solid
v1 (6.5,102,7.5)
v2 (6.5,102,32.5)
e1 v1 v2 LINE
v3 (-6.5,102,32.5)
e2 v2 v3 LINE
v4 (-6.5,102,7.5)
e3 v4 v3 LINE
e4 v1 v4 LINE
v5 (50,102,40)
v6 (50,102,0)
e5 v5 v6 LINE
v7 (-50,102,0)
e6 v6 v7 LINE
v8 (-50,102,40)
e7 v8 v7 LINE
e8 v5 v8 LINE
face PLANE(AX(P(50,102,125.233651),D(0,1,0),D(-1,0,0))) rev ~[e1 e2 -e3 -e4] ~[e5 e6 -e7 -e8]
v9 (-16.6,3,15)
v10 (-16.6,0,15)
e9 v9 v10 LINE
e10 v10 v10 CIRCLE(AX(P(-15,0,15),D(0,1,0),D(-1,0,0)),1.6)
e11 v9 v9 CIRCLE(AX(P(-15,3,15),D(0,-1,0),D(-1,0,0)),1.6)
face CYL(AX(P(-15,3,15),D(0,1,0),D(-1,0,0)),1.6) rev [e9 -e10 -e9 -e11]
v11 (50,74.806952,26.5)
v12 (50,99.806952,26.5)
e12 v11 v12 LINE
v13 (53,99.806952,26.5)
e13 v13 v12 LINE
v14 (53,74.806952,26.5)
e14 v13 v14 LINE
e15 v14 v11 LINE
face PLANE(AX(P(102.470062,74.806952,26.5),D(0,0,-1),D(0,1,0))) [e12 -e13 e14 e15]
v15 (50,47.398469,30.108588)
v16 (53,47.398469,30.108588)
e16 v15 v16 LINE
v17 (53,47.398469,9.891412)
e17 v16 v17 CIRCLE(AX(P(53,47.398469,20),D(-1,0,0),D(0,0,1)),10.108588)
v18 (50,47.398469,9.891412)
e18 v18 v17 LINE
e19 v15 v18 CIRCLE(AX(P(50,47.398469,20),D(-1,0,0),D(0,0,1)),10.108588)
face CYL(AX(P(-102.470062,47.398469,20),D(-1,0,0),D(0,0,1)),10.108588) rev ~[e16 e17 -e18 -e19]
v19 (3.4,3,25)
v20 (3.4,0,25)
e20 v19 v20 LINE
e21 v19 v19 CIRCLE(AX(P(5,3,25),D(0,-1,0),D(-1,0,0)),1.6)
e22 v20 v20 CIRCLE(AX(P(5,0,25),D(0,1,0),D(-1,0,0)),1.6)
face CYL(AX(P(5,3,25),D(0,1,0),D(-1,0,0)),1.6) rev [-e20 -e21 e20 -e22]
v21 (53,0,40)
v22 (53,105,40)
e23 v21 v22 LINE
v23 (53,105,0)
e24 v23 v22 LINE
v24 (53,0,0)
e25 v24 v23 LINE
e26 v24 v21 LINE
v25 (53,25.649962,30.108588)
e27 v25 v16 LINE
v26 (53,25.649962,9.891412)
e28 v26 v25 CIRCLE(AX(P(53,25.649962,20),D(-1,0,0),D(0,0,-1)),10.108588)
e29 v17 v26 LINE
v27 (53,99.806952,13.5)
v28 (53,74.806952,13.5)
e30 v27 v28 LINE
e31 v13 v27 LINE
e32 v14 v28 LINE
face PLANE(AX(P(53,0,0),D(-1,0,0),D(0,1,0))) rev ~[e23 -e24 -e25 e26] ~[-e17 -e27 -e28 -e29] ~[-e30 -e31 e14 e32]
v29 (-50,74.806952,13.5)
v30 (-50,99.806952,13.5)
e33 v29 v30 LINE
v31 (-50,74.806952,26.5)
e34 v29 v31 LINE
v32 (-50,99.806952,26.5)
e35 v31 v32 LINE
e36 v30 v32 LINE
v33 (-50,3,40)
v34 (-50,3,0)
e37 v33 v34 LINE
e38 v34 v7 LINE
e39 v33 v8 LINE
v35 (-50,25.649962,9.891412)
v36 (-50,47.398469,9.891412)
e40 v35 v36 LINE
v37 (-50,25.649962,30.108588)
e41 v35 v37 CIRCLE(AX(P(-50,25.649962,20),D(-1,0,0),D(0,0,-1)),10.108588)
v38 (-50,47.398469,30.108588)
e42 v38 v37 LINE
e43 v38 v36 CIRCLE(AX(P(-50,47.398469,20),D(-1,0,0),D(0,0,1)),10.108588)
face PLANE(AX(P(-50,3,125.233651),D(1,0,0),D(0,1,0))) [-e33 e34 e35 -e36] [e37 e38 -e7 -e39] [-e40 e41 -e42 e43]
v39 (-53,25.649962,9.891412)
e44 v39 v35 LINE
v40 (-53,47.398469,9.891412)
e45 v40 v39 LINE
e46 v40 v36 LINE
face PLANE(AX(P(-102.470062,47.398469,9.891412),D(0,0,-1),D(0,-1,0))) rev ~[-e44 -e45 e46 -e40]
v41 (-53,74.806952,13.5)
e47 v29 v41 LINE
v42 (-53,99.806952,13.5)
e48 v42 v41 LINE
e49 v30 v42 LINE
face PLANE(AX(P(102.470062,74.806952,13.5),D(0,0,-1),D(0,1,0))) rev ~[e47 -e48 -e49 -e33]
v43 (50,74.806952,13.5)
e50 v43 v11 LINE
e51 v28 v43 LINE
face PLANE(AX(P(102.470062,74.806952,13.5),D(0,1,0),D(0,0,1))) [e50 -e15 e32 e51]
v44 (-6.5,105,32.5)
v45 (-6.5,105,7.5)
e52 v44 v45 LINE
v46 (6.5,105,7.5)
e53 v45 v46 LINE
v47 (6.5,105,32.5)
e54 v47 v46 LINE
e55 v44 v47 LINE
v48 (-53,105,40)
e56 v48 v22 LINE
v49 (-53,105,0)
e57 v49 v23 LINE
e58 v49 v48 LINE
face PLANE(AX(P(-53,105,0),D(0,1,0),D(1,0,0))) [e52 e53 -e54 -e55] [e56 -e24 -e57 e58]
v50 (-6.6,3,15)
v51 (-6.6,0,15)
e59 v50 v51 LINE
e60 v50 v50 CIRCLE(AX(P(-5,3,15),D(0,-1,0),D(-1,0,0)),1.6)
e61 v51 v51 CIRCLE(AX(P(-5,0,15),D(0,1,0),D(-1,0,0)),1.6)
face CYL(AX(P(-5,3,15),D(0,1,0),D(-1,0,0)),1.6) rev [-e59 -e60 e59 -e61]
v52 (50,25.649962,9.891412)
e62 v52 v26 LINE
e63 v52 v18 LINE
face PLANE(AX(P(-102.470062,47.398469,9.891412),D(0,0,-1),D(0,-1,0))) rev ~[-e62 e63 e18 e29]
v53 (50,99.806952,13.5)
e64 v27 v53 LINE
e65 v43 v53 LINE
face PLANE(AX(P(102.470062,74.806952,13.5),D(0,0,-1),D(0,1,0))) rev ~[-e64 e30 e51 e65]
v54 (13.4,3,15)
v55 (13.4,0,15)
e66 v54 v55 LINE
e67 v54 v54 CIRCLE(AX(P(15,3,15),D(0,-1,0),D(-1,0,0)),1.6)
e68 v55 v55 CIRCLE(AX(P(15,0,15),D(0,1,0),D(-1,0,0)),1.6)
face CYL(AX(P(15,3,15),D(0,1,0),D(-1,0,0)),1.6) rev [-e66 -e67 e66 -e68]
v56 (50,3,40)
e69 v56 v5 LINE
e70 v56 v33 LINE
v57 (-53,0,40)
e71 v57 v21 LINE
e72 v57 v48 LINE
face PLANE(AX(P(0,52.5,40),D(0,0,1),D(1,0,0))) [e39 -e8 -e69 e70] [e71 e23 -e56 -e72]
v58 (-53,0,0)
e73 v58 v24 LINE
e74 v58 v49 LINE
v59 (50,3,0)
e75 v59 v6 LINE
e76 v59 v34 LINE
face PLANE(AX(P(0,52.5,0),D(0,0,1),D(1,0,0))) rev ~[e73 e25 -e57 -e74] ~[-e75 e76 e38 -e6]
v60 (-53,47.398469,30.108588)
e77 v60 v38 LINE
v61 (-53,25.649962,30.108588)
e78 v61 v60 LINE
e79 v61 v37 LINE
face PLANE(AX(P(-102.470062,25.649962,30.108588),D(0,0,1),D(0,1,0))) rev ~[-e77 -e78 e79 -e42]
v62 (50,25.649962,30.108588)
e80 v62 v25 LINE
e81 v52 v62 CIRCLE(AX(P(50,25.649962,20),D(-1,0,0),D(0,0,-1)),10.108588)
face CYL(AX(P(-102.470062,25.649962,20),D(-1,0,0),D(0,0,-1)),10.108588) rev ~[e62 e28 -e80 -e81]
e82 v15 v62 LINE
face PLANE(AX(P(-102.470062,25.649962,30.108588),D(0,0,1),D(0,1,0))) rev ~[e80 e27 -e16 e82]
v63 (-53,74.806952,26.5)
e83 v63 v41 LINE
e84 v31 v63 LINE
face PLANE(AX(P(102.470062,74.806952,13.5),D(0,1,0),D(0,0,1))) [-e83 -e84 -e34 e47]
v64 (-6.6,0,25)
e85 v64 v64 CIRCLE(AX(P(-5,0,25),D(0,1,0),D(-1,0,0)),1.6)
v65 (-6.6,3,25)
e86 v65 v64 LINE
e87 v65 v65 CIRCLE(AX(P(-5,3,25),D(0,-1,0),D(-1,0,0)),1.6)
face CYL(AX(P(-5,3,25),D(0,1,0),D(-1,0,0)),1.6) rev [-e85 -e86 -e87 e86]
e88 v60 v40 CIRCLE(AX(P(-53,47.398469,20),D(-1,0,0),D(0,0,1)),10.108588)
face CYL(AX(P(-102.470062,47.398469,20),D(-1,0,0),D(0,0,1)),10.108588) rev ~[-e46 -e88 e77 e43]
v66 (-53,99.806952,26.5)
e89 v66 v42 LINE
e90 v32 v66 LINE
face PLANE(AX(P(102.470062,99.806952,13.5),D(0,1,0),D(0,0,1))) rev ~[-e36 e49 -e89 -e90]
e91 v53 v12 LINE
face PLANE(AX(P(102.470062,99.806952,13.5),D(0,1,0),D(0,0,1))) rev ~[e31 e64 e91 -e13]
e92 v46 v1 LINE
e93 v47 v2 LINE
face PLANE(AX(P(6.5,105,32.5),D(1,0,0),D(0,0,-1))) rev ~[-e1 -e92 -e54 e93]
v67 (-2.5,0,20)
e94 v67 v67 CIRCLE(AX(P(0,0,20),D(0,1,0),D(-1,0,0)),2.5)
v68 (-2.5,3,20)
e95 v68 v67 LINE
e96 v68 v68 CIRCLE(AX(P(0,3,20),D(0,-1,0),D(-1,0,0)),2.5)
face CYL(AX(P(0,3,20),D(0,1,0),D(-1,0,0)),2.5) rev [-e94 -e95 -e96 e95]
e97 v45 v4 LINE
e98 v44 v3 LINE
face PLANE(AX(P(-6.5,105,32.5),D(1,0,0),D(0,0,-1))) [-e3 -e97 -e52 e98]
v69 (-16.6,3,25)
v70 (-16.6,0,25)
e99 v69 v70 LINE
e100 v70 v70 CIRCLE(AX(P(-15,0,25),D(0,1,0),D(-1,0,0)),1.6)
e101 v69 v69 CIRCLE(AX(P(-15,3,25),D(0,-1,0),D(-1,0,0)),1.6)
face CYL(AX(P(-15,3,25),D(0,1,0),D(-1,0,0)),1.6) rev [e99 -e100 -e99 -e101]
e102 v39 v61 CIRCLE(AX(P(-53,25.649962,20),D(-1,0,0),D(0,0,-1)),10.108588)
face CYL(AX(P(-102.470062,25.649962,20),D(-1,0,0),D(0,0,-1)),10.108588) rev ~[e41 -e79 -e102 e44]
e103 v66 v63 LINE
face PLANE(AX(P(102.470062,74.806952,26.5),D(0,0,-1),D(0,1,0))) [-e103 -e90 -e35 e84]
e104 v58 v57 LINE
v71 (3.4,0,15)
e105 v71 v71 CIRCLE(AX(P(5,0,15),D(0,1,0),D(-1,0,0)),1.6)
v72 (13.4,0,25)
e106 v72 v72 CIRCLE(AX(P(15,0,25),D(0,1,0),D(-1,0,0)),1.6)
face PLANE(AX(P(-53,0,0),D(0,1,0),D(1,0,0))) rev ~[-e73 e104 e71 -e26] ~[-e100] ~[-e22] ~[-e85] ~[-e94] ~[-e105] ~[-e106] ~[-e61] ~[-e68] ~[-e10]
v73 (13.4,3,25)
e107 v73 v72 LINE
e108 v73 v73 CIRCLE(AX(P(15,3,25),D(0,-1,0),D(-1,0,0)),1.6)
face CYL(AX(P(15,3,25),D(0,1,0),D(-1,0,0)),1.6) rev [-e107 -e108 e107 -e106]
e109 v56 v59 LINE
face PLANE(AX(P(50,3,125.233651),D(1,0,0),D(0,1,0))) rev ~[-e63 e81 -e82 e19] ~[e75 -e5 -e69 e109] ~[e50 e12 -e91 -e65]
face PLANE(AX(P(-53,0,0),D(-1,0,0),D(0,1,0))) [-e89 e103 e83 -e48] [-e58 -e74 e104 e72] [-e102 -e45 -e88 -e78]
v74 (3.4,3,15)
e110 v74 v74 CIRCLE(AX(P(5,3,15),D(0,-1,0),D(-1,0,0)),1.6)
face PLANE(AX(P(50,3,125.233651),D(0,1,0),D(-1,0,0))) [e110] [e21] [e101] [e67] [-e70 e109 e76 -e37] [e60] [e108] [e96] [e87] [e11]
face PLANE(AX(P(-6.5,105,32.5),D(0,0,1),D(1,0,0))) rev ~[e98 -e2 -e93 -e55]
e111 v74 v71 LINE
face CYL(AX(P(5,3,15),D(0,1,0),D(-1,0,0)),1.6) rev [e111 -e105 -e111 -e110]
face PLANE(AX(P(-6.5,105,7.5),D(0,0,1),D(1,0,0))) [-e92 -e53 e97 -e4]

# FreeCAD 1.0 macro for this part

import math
import FreeCAD as App
import Part
import Sketcher

V = App.Vector
Q = App.Units.Quantity

doc = App.newDocument("Part")
body = doc.addObject("PartDesign::Body", "Body")

sketch1 = body.newObject("Sketcher::SketchObject", "Sketch")
sketch1.AttachmentSupport = (doc.getObject("XY_Plane"), [""])
sketch1.MapMode = "FlatFace"
sketch1.addGeometry([
    Part.LineSegment(V(-53, 105, 0), V(-53, 0, 0)),
    Part.LineSegment(V(-53, 0, 0), V(53, 0, 0)),
    Part.LineSegment(V(53, 0, 0), V(53, 105, 0)),
    Part.LineSegment(V(53, 105, 0), V(-53, 105, 0)),
], False)
sketch1.addConstraint([
    Sketcher.Constraint("Coincident", 0, 2, 1, 1),
    Sketcher.Constraint("Coincident", 1, 2, 2, 1),
    Sketcher.Constraint("Coincident", 2, 2, 3, 1),
    Sketcher.Constraint("Coincident", 3, 2, 0, 1),
    Sketcher.Constraint("Vertical", 0),
    Sketcher.Constraint("Horizontal", 1),
    Sketcher.Constraint("Vertical", 2),
    Sketcher.Constraint("Horizontal", 3),
    Sketcher.Constraint("Symmetric", 0, 2, 1, 2, -1, 1),
    Sketcher.Constraint("DistanceX", 1, 1, 1, 2, Q("106 mm")),
    Sketcher.Constraint("DistanceY", 0, 2, 0, 1, Q("105 mm")),
])
pad1 = body.newObject("PartDesign::Pad", "Pad")
pad1.Profile = sketch1
pad1.Length = 40

sketch2 = body.newObject("Sketcher::SketchObject", "Sketch001")
sketch2.AttachmentSupport = (doc.getObject("XY_Plane"), [""])
sketch2.MapMode = "FlatFace"
sketch2.addGeometry([
    Part.LineSegment(V(50, 102, 0), V(50, 3, 0)),
    Part.LineSegment(V(50, 3, 0), V(-50, 3, 0)),
    Part.LineSegment(V(-50, 3, 0), V(-50, 102, 0)),
    Part.LineSegment(V(-50, 102, 0), V(50, 102, 0)),
], False)
sketch2.addConstraint([
    Sketcher.Constraint("Coincident", 0, 2, 1, 1),
    Sketcher.Constraint("Coincident", 1, 2, 2, 1),
    Sketcher.Constraint("Coincident", 2, 2, 3, 1),
    Sketcher.Constraint("Coincident", 3, 2, 0, 1),
    Sketcher.Constraint("Vertical", 0),
    Sketcher.Constraint("Horizontal", 1),
    Sketcher.Constraint("Vertical", 2),
    Sketcher.Constraint("Horizontal", 3),
    Sketcher.Constraint("DistanceX", 1, 2, 1, 1, Q("100 mm")),
    Sketcher.Constraint("DistanceY", 0, 2, 0, 1, Q("99 mm")),
    Sketcher.Constraint("DistanceX", -1, 1, 0, 2, Q("50 mm")),
    Sketcher.Constraint("DistanceY", -1, 1, 0, 2, Q("3 mm")),
])
pocket1 = body.newObject("PartDesign::Pocket", "Pocket")
pocket1.Profile = sketch2
pocket1.Type = "ThroughAll"
pocket1.Midplane = True

sketch3 = body.newObject("Sketcher::SketchObject", "Sketch002")
sketch3.AttachmentSupport = (doc.getObject("XZ_Plane"), [""])
sketch3.MapMode = "FlatFace"
sketch3.addGeometry([
    Part.Circle(V(0, 20, 0), V(0, 0, 1), 2.5),
    Part.Circle(V(5, 25, 0), V(0, 0, 1), 1.6),
    Part.Circle(V(5, 15, 0), V(0, 0, 1), 1.6),
    Part.Circle(V(-5, 15, 0), V(0, 0, 1), 1.6),
    Part.Circle(V(-5, 25, 0), V(0, 0, 1), 1.6),
    Part.Circle(V(15, 25, 0), V(0, 0, 1), 1.6),
    Part.Circle(V(-15, 25, 0), V(0, 0, 1), 1.6),
    Part.Circle(V(15, 15, 0), V(0, 0, 1), 1.6),
    Part.Circle(V(-15, 15, 0), V(0, 0, 1), 1.6),
], False)
sketch3.addConstraint([
    Sketcher.Constraint("Equal", 1, 2),
    Sketcher.Constraint("Equal", 2, 3),
    Sketcher.Constraint("Equal", 3, 4),
    Sketcher.Constraint("Equal", 4, 5),
    Sketcher.Constraint("Equal", 5, 6),
    Sketcher.Constraint("Equal", 6, 7),
    Sketcher.Constraint("Equal", 7, 8),
    Sketcher.Constraint("Symmetric", 2, 3, 3, 3, -2),
    Sketcher.Constraint("Symmetric", 1, 3, 4, 3, -2),
    Sketcher.Constraint("Symmetric", 5, 3, 6, 3, -2),
    Sketcher.Constraint("Symmetric", 7, 3, 8, 3, -2),
    Sketcher.Constraint("PointOnObject", 0, 3, -2),
    Sketcher.Constraint("Horizontal", 4, 3, 5, 3),
    Sketcher.Constraint("Horizontal", 3, 3, 7, 3),
    Sketcher.Constraint("Vertical", 1, 3, 2, 3),
    Sketcher.Constraint("Vertical", 5, 3, 7, 3),
    Sketcher.Constraint("Diameter", 0, Q("5 mm")),
    Sketcher.Constraint("Diameter", 1, Q("3.2 mm")),
    Sketcher.Constraint("DistanceY", -1, 1, 0, 3, Q("20 mm")),
    Sketcher.Constraint("DistanceX", -1, 1, 1, 3, Q("5 mm")),
    Sketcher.Constraint("DistanceY", -1, 1, 1, 3, Q("25 mm")),
    Sketcher.Constraint("DistanceY", -1, 1, 2, 3, Q("15 mm")),
    Sketcher.Constraint("DistanceX", -1, 1, 5, 3, Q("15 mm")),
])
pocket2 = body.newObject("PartDesign::Pocket", "Pocket001")
pocket2.Profile = sketch3
pocket2.Type = "TwoLengths"
pocket2.Length = 1
pocket2.Length2 = 3
pocket2.Reversed = True

sketch4 = body.newObject("Sketcher::SketchObject", "Sketch003")
sketch4.AttachmentSupport = (doc.getObject("XZ_Plane"), [""])
sketch4.MapMode = "FlatFace"
sketch4.AttachmentOffset = App.Placement(V(0, 0, -105), App.Rotation())
sketch4.addGeometry([
    Part.LineSegment(V(-6.5, 7.5, 0), V(-6.5, 32.5, 0)),
    Part.LineSegment(V(-6.5, 32.5, 0), V(6.5, 32.5, 0)),
    Part.LineSegment(V(6.5, 32.5, 0), V(6.5, 7.5, 0)),
    Part.LineSegment(V(6.5, 7.5, 0), V(-6.5, 7.5, 0)),
], False)
sketch4.addConstraint([
    Sketcher.Constraint("Coincident", 0, 2, 1, 1),
    Sketcher.Constraint("Coincident", 1, 2, 2, 1),
    Sketcher.Constraint("Coincident", 2, 2, 3, 1),
    Sketcher.Constraint("Coincident", 3, 2, 0, 1),
    Sketcher.Constraint("Vertical", 0),
    Sketcher.Constraint("Horizontal", 1),
    Sketcher.Constraint("Vertical", 2),
    Sketcher.Constraint("Horizontal", 3),
    Sketcher.Constraint("DistanceX", 1, 1, 1, 2, Q("13 mm")),
    Sketcher.Constraint("DistanceY", 0, 1, 0, 2, Q("25 mm")),
    Sketcher.Constraint("DistanceX", 0, 2, -1, 1, Q("6.5 mm")),
    Sketcher.Constraint("DistanceY", -1, 1, 0, 2, Q("32.5 mm")),
])
pocket3 = body.newObject("PartDesign::Pocket", "Pocket002")
pocket3.Profile = sketch4
pocket3.Type = "UpToFirst"
pocket3.Reversed = True

sketch5 = body.newObject("Sketcher::SketchObject", "Sketch004")
sketch5.AttachmentSupport = (doc.getObject("XZ_Plane"), [""])
sketch5.MapMode = "FlatFace"
sketch5.AttachmentOffset = App.Placement(V(0, 0, -105), App.Rotation())
sketch5.addGeometry([
    Part.LineSegment(V(-6.5, 7.5, 0), V(-6.5, 32.5, 0)),
    Part.LineSegment(V(-6.5, 32.5, 0), V(6.5, 32.5, 0)),
    Part.LineSegment(V(6.5, 32.5, 0), V(6.5, 7.5, 0)),
    Part.LineSegment(V(6.5, 7.5, 0), V(-6.5, 7.5, 0)),
], False)
sketch5.addConstraint([
    Sketcher.Constraint("Coincident", 0, 2, 1, 1),
    Sketcher.Constraint("Coincident", 1, 2, 2, 1),
    Sketcher.Constraint("Coincident", 2, 2, 3, 1),
    Sketcher.Constraint("Coincident", 3, 2, 0, 1),
    Sketcher.Constraint("Vertical", 0),
    Sketcher.Constraint("Horizontal", 1),
    Sketcher.Constraint("Vertical", 2),
    Sketcher.Constraint("Horizontal", 3),
    Sketcher.Constraint("DistanceX", 1, 1, 1, 2, Q("13 mm")),
    Sketcher.Constraint("DistanceY", 0, 1, 0, 2, Q("25 mm")),
    Sketcher.Constraint("DistanceX", 0, 2, -1, 1, Q("6.5 mm")),
    Sketcher.Constraint("DistanceY", -1, 1, 0, 2, Q("32.5 mm")),
])
pocket4 = body.newObject("PartDesign::Pocket", "Pocket003")
pocket4.Profile = sketch5
pocket4.Length = 125.233651

sketch6 = body.newObject("Sketcher::SketchObject", "Sketch005")
sketch6.AttachmentSupport = (doc.getObject("YZ_Plane"), [""])
sketch6.MapMode = "FlatFace"
sketch6.AttachmentOffset = App.Placement(V(0, 0, -53), App.Rotation())
sketch6.addGeometry([
    Part.LineSegment(V(99.806952, 13.5, 0), V(74.806952, 13.5, 0)),
    Part.LineSegment(V(74.806952, 13.5, 0), V(74.806952, 26.5, 0)),
    Part.LineSegment(V(74.806952, 26.5, 0), V(99.806952, 26.5, 0)),
    Part.LineSegment(V(99.806952, 26.5, 0), V(99.806952, 13.5, 0)),
], False)
sketch6.addConstraint([
    Sketcher.Constraint("Coincident", 0, 2, 1, 1),
    Sketcher.Constraint("Coincident", 1, 2, 2, 1),
    Sketcher.Constraint("Coincident", 2, 2, 3, 1),
    Sketcher.Constraint("Coincident", 3, 2, 0, 1),
    Sketcher.Constraint("Horizontal", 0),
    Sketcher.Constraint("Vertical", 1),
    Sketcher.Constraint("Horizontal", 2),
    Sketcher.Constraint("Vertical", 3),
    Sketcher.Constraint("DistanceX", 0, 2, 0, 1, Q("25 mm")),
    Sketcher.Constraint("DistanceY", 1, 1, 1, 2, Q("13 mm")),
    Sketcher.Constraint("DistanceY", -1, 1, 0, 2, Q("13.5 mm")),
    Sketcher.Constraint("DistanceX", -1, 1, 0, 2, Q("74.806952 mm")),
])
pocket5 = body.newObject("PartDesign::Pocket", "Pocket004")
pocket5.Profile = sketch6
pocket5.Type = "ThroughAll"
pocket5.Midplane = True

sketch7 = body.newObject("Sketcher::SketchObject", "Sketch006")
sketch7.AttachmentSupport = (doc.getObject("YZ_Plane"), [""])
sketch7.MapMode = "FlatFace"
sketch7.AttachmentOffset = App.Placement(V(0, 0, 53), App.Rotation())
sketch7.addGeometry([
    Part.LineSegment(V(47.398469, 30.108588, 0), V(25.649962, 30.108588, 0)),
    Part.ArcOfCircle(Part.Circle(V(25.649962, 20, 0), V(0, 0, 1), 10.108588), math.radians(90), math.radians(270)),
    Part.LineSegment(V(25.649962, 9.891412, 0), V(47.398469, 9.891412, 0)),
    Part.ArcOfCircle(Part.Circle(V(47.398469, 20, 0), V(0, 0, 1), 10.108588), math.radians(-90), math.radians(90)),
], False)
sketch7.addConstraint([
    Sketcher.Constraint("Tangent", 0, 2, 1, 1),
    Sketcher.Constraint("Tangent", 1, 2, 2, 1),
    Sketcher.Constraint("Tangent", 2, 2, 3, 1),
    Sketcher.Constraint("Tangent", 3, 2, 0, 1),
    Sketcher.Constraint("Horizontal", 0),
    Sketcher.Constraint("Horizontal", 2),
    Sketcher.Constraint("DistanceY", -1, 1, 1, 3, Q("20 mm")),
    Sketcher.Constraint("Radius", 1, Q("10.108588 mm")),
    Sketcher.Constraint("DistanceX", 0, 2, 0, 1, Q("21.748507 mm")),
    Sketcher.Constraint("DistanceX", -1, 1, 1, 3, Q("25.649962 mm")),
])
pocket6 = body.newObject("PartDesign::Pocket", "Pocket005")
pocket6.Profile = sketch7
pocket6.Type = "ThroughAll"
pocket6.Midplane = True

doc.recompute()
